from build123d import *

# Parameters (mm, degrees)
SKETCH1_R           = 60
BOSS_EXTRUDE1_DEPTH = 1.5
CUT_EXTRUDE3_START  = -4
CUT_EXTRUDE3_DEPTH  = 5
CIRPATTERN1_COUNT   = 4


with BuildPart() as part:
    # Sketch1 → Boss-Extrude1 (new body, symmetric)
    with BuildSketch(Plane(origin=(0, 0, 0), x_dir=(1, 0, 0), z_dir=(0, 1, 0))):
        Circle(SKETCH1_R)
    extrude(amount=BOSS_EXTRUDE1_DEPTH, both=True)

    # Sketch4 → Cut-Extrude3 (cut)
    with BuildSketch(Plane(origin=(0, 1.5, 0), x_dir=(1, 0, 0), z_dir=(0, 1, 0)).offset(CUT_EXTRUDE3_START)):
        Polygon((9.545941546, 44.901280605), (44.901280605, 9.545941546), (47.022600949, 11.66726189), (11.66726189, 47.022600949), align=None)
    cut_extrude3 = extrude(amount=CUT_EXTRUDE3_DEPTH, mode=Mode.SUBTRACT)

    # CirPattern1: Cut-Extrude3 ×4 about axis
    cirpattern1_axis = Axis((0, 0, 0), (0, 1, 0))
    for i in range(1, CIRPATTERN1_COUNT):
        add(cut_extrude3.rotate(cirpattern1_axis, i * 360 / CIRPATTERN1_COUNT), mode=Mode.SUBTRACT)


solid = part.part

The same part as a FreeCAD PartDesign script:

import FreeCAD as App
import Part
import Sketcher
Q = App.Units.Quantity


def add_polygon(sketch, points):
    """Adds a closed chain of lines whose ends are joined by coincident constraints."""
    first, n = sketch.GeometryCount, len(points)
    for a, b in zip(points, points[1:] + points[:1]):
        sketch.addGeometry(Part.LineSegment(App.Vector(*a, 0), App.Vector(*b, 0)), False)
    for i in range(n):
        sketch.addConstraint(Sketcher.Constraint("Coincident", first + i, 2, first + (i + 1) % n, 1))

doc = App.newDocument("Part")
body = doc.addObject("PartDesign::Body", "Body")

# Sketch on XZ plane
sketch1 = body.newObject("Sketcher::SketchObject", "Sketch")
sketch1.AttachmentSupport = (doc.getObject("XZ_Plane"), [""])
sketch1.MapMode = "FlatFace"
sketch1.addGeometry(Part.Circle(App.Vector(0, 0, 0), App.Vector(0, 0, 1), 60), False)
sketch1.addConstraint(Sketcher.Constraint("Coincident", 0, 3, -1, 1))
sketch1.addConstraint(Sketcher.Constraint("Diameter", 0, Q("120 mm")))
pad1 = body.newObject("PartDesign::Pad", "Pad")
pad1.Profile = sketch1
pad1.Length = 3
pad1.Midplane = True

# Sketch on XZ plane
sketch2 = body.newObject("Sketcher::SketchObject", "Sketch001")
sketch2.AttachmentSupport = (doc.getObject("XZ_Plane"), [""])
sketch2.MapMode = "FlatFace"
sketch2.AttachmentOffset = App.Placement(App.Vector(0, 0, 2.5), App.Rotation())
add_polygon(sketch2, [(9.5, -44.9), (44.9, -9.5), (47, -11.7), (11.7, -47)])  # lines 0-3
sketch2.addConstraint(Sketcher.Constraint("Perpendicular", 0, 1))
sketch2.addConstraint(Sketcher.Constraint("Perpendicular", 1, 2))
sketch2.addConstraint(Sketcher.Constraint("Perpendicular", 2, 3))
sketch2.addConstraint(Sketcher.Constraint("Angle", 0, Q("45 deg")))
sketch2.addConstraint(Sketcher.Constraint("Distance", 0, Q("50 mm")))
sketch2.addConstraint(Sketcher.Constraint("Distance", 1, Q("3 mm")))
sketch2.addConstraint(Sketcher.Constraint("DistanceX", -1, 1, 1, 2, Q("47.022601 mm")))
sketch2.addConstraint(Sketcher.Constraint("DistanceY", 2, 2, -1, 1, Q("47.022601 mm")))
pocket1 = body.newObject("PartDesign::Pocket", "Pocket")
pocket1.Profile = sketch2
pocket1.Length = 5
doc.recompute()

polarpattern = body.newObject("PartDesign::PolarPattern", "PolarPattern")
polarpattern.Originals = [pocket1]
polarpattern.Axis = (doc.getObject("Y_Axis"), [""])
polarpattern.Angle = 360
polarpattern.Occurrences = 4
body.Tip = polarpattern

doc.recompute()
